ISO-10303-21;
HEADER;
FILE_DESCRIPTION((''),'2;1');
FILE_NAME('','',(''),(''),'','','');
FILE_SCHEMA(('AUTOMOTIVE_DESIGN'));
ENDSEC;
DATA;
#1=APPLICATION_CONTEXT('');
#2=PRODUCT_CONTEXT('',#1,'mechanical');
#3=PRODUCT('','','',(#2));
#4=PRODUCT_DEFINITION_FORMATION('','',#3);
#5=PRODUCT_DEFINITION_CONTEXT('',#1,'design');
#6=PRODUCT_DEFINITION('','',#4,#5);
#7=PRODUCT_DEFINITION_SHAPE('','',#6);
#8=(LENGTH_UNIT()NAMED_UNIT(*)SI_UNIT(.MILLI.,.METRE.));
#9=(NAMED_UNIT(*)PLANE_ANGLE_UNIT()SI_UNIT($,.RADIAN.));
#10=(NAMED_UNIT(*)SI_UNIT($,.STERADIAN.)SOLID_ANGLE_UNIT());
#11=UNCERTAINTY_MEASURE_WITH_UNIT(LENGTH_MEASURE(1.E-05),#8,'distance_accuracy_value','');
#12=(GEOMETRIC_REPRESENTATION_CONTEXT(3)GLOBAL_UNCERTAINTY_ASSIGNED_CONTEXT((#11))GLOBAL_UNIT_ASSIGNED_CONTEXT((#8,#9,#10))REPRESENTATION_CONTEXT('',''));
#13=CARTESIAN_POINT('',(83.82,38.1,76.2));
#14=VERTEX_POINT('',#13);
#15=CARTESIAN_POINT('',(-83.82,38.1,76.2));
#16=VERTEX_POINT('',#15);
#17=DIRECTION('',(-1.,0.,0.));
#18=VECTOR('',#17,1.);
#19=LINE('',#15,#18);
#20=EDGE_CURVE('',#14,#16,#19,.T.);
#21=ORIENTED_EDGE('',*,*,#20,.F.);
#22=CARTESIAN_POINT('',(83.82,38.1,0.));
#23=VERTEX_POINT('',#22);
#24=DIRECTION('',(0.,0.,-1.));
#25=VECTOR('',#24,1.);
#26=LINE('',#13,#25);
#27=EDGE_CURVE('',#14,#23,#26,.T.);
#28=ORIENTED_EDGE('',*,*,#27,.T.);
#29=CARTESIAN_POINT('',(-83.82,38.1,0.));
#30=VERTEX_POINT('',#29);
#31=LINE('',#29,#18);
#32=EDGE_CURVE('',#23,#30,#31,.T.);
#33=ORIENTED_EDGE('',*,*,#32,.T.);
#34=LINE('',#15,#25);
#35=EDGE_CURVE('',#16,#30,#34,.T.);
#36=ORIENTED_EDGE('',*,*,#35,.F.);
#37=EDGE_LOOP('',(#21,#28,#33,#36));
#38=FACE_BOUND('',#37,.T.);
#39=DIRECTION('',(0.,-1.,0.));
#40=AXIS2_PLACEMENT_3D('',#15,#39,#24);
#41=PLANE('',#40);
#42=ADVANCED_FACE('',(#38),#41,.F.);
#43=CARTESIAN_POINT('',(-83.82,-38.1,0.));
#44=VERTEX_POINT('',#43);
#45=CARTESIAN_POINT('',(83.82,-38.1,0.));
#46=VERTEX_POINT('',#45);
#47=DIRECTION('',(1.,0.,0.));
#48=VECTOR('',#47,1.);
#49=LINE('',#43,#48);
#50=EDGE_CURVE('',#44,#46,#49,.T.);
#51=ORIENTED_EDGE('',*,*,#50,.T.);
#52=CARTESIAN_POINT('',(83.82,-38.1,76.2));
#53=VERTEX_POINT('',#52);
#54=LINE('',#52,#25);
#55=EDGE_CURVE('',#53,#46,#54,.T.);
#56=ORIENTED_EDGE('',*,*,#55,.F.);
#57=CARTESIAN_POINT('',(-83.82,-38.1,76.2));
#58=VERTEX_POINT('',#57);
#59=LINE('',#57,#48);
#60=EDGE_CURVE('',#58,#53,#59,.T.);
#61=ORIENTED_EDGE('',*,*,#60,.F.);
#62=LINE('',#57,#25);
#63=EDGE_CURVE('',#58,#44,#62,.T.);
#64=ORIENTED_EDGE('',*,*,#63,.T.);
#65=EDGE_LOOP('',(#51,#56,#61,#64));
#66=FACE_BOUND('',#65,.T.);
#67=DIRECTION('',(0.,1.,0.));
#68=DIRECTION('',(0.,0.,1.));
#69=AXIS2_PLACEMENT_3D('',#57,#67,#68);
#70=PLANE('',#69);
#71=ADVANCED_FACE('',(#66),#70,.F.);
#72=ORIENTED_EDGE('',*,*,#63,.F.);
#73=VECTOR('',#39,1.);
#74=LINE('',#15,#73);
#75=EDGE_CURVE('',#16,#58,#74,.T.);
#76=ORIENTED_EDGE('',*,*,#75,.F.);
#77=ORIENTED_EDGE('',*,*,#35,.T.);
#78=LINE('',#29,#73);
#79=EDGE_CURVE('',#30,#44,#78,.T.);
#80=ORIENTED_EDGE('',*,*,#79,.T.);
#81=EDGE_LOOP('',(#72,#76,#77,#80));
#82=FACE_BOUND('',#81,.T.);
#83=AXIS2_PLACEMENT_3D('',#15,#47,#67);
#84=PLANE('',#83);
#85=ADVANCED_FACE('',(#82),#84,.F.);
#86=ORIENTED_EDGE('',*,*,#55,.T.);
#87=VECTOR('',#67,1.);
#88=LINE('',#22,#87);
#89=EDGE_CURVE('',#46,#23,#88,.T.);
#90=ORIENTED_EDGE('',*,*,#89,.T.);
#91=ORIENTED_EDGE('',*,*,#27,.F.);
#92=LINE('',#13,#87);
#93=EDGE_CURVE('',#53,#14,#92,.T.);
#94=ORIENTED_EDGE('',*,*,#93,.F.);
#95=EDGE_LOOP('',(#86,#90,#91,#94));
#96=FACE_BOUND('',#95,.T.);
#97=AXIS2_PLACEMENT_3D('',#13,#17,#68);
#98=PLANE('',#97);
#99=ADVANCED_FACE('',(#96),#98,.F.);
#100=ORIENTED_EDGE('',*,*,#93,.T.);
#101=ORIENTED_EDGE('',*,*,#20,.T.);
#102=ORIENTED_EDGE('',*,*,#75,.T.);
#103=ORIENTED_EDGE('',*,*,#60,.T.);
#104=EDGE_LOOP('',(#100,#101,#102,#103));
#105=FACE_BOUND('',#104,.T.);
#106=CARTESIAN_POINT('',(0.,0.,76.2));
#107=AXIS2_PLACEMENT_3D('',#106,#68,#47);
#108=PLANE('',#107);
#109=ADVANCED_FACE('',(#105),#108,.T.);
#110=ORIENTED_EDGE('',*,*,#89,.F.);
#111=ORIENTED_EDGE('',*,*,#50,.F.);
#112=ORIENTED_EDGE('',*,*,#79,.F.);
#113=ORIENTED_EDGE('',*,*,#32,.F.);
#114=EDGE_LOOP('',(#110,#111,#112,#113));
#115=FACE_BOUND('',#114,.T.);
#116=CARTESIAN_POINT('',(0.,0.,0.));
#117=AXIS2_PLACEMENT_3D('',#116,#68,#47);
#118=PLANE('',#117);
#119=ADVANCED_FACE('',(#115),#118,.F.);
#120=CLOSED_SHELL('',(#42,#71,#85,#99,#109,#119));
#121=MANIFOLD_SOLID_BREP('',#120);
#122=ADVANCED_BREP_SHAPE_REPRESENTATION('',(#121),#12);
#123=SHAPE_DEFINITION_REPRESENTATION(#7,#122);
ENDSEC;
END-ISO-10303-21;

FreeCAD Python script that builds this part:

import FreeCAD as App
import Part
import Sketcher

V = App.Vector
Q = App.Units.Quantity


def add_polygon(sketch, points):
    """Adds a closed chain of lines whose ends are joined by coincident constraints."""
    first, n = sketch.GeometryCount, len(points)
    for a, b in zip(points, points[1:] + points[:1]):
        sketch.addGeometry(Part.LineSegment(App.Vector(*a, 0), App.Vector(*b, 0)), False)
    for i in range(n):
        sketch.addConstraint(Sketcher.Constraint("Coincident", first + i, 2, first + (i + 1) % n, 1))

doc = App.newDocument("Part")
body = doc.addObject("PartDesign::Body", "Body")

sketch1 = body.newObject("Sketcher::SketchObject", "Sketch")
sketch1.AttachmentSupport = (doc.getObject("XY_Plane"), [""])
sketch1.MapMode = "FlatFace"
add_polygon(sketch1, [(-84, 38), (-84, -38), (84, -38), (84, 38)])
sketch1.addConstraint([
    Sketcher.Constraint("Vertical", 0),
    Sketcher.Constraint("Horizontal", 1),
    Sketcher.Constraint("Vertical", 2),
    Sketcher.Constraint("Horizontal", 3),
    Sketcher.Constraint("Symmetric", 0, 2, 2, 2, -1, 1),
    Sketcher.Constraint("DistanceY", 0, 2, 0, 1, Q("3 in")),
    Sketcher.Constraint("DistanceX", 1, 1, 1, 2, Q("6.6 in")),
])
pad1 = body.newObject("PartDesign::Pad", "Pad")
pad1.Profile = sketch1
pad1.Length = Q("3 in")

doc.recompute()
